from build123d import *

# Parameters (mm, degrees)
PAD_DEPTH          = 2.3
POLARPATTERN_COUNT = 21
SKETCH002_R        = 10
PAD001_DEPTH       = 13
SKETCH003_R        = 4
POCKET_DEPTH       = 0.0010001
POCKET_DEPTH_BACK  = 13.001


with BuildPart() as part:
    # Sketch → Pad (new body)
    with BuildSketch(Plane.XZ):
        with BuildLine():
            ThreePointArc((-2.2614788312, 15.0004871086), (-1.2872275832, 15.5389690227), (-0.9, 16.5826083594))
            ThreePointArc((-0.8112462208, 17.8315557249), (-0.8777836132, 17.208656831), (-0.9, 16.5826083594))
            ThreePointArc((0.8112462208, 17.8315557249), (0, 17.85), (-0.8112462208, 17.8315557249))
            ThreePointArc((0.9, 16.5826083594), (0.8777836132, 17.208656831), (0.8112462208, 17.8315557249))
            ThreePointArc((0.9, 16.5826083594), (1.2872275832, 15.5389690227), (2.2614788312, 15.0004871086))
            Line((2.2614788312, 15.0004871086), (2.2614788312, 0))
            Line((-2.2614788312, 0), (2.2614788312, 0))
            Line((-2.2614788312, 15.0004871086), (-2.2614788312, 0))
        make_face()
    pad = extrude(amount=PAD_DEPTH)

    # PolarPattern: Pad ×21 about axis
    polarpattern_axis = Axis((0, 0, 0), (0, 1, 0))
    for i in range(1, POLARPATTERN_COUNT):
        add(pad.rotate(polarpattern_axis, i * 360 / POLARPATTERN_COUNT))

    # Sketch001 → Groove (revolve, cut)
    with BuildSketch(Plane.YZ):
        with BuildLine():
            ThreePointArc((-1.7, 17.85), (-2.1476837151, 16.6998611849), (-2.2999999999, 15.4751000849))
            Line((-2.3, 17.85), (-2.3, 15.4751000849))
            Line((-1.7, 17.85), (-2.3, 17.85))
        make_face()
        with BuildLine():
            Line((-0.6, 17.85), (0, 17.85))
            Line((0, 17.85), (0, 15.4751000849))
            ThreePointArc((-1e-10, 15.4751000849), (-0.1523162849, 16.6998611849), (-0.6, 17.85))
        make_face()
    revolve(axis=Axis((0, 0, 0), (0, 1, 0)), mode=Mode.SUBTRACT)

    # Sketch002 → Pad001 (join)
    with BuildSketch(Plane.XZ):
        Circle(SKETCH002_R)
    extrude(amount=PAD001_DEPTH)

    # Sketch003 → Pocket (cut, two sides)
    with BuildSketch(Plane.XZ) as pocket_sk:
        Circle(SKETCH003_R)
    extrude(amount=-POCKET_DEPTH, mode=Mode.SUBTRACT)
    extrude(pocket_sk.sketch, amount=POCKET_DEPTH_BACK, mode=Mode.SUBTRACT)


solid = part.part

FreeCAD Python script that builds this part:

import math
import FreeCAD as App
import Part
import Sketcher

doc = App.newDocument("Part")
body = doc.addObject("PartDesign::Body", "Body")

# Sketch on XZ plane
sketch1 = doc.addObject("Sketcher::SketchObject", "Sketch")
body.addObject(sketch1)
sketch1.AttachmentSupport = (doc.XZ_Plane, [""])
sketch1.MapMode = "FlatFace"
sketch1.addGeometry([
    Part.ArcOfCircle(Part.Circle(App.Vector(-2.5, 16.6, 0), App.Vector(0, 0, 1), 1.6), math.radians(-81), math.radians(0)),  # 0
    Part.LineSegment(App.Vector(-2.3, 15, 0), App.Vector(-2.3, 0, 0)),  # 1
    Part.LineSegment(App.Vector(-2.3, 0, 0), App.Vector(2.3, 0, 0)),  # 2
    Part.LineSegment(App.Vector(2.3, 0, 0), App.Vector(2.3, 15, 0)),  # 3
    Part.ArcOfCircle(Part.Circle(App.Vector(2.5, 16.6, 0), App.Vector(0, 0, 1), 1.6), math.radians(180), math.radians(261)),  # 4
    Part.ArcOfCircle(Part.Circle(App.Vector(-7.9, 16.6, 0), App.Vector(0, 0, 1), 8.8), math.radians(0), math.radians(8.13)),  # 5
    Part.ArcOfCircle(Part.Circle(App.Vector(0, 0, 0), App.Vector(0, 0, 1), 17.9), math.radians(87.4), math.radians(92.6)),  # 6
    Part.ArcOfCircle(Part.Circle(App.Vector(7.9, 16.6, 0), App.Vector(0, 0, 1), 8.8), math.radians(171.87), math.radians(180)),  # 7
], False)
sketch1.addConstraint([
    Sketcher.Constraint("Coincident", 0, 1, 1, 1),
    Sketcher.Constraint("Coincident", 1, 2, 2, 1),
    Sketcher.Constraint("Coincident", 2, 2, 3, 1),
    Sketcher.Constraint("Coincident", 3, 2, 4, 2),
    Sketcher.Constraint("Tangent", 4, 1, 5, 1),
    Sketcher.Constraint("Coincident", 5, 2, 6, 1),
    Sketcher.Constraint("Coincident", 6, 2, 7, 1),
    Sketcher.Constraint("Tangent", 7, 2, 0, 2),
    Sketcher.Constraint("Vertical", 1),
    Sketcher.Constraint("Horizontal", 2),
    Sketcher.Constraint("Vertical", 3),
    Sketcher.Constraint("Coincident", 6, 3, -1, 1),
    Sketcher.Constraint("Equal", 0, 4),
    Sketcher.Constraint("Equal", 5, 7),
    Sketcher.Constraint("Symmetric", 1, 2, 2, 2, -1, 1),
    Sketcher.Constraint("Symmetric", 0, 3, 4, 3, -2),
    Sketcher.Constraint("Horizontal", 4, 3, 5, 3),
    Sketcher.Constraint("Horizontal", 5, 3, 7, 3),
    Sketcher.Constraint("Radius", 0, 1.6),
    Sketcher.Constraint("Radius", 6, 17.85),
    Sketcher.Constraint("Radius", 5, 8.832),
    Sketcher.Constraint("DistanceX", 0, 3, 4, 3, 5.0),
    Sketcher.Constraint("DistanceX", 2, 1, 2, 2, 4.522958),
    Sketcher.Constraint("DistanceY", 1, 2, 1, 1, 15.000487),
])
pad1 = doc.addObject("PartDesign::Pad", "Pad")
body.addObject(pad1)
pad1.Profile = sketch1
pad1.Length = 2.3
doc.recompute()

polarpattern = doc.addObject("PartDesign::PolarPattern", "PolarPattern")
body.addObject(polarpattern)
polarpattern.Originals = [pad1]
polarpattern.Axis = (doc.Y_Axis, [""])
polarpattern.Angle = 360
polarpattern.Occurrences = 21
body.Tip = polarpattern

# Sketch on YZ plane
sketch2 = doc.addObject("Sketcher::SketchObject", "Sketch001")
body.addObject(sketch2)
sketch2.AttachmentSupport = (doc.YZ_Plane, [""])
sketch2.MapMode = "FlatFace"
sketch2.addGeometry([
    Part.ArcOfCircle(Part.Circle(App.Vector(2.7, 15.5, 0), App.Vector(0, 0, 1), 5), math.radians(152), math.radians(180)),  # 0
    Part.LineSegment(App.Vector(-1.7, 17.9, 0), App.Vector(-2.3, 17.9, 0)),  # 1
    Part.LineSegment(App.Vector(-2.3, 17.9, 0), App.Vector(-2.3, 15.5, 0)),  # 2
    Part.LineSegment(App.Vector(0, 17.9, 0), App.Vector(-0.6, 17.9, 0)),  # 3
    Part.ArcOfCircle(Part.Circle(App.Vector(-5, 15.5, 0), App.Vector(0, 0, 1), 5), math.radians(0), math.radians(28)),  # 4
    Part.LineSegment(App.Vector(0, 15.5, 0), App.Vector(0, 17.9, 0)),  # 5
], False)
sketch2.addConstraint([
    Sketcher.Constraint("Coincident", 0, 1, 1, 1),
    Sketcher.Constraint("Coincident", 1, 2, 2, 1),
    Sketcher.Constraint("Coincident", 2, 2, 0, 2),
    Sketcher.Constraint("Coincident", 3, 2, 4, 2),
    Sketcher.Constraint("Coincident", 4, 1, 5, 1),
    Sketcher.Constraint("Coincident", 5, 2, 3, 1),
    Sketcher.Constraint("Horizontal", 1),
    Sketcher.Constraint("Vertical", 2),
    Sketcher.Constraint("Horizontal", 3),
    Sketcher.Constraint("Vertical", 5),
    Sketcher.Constraint("Equal", 0, 4),
    Sketcher.Constraint("PointOnObject", 4, 1, -2),
    Sketcher.Constraint("Horizontal", 0, 3, 4, 3),
    Sketcher.Constraint("Horizontal", 1, 2, 3, 2),
    Sketcher.Constraint("Horizontal", 2, 2, 4, 1),
    Sketcher.Constraint("Radius", 0, 5.0),
    Sketcher.Constraint("DistanceX", 1, 2, 1, 1, 0.6),
    Sketcher.Constraint("DistanceX", -1, 1, 0, 3, 2.7),
    Sketcher.Constraint("DistanceY", -1, 1, 0, 1, 17.85),
    Sketcher.Constraint("DistanceY", 2, 2, 2, 1, 2.3749),
])
groove = doc.addObject("PartDesign::Groove", "Groove")
body.addObject(groove)
groove.Profile = sketch2
groove.ReferenceAxis = (sketch2, ["H_Axis"])
groove.Angle = 360

# Sketch on XZ plane
sketch3 = doc.addObject("Sketcher::SketchObject", "Sketch002")
body.addObject(sketch3)
sketch3.AttachmentSupport = (doc.XZ_Plane, [""])
sketch3.MapMode = "FlatFace"
sketch3.addGeometry(Part.Circle(App.Vector(0, 0, 0), App.Vector(0, 0, 1), 10), False)
sketch3.addConstraint([
    Sketcher.Constraint("Coincident", 0, 3, -1, 1),
    Sketcher.Constraint("Diameter", 0, 20.0),
])
pad2 = doc.addObject("PartDesign::Pad", "Pad001")
body.addObject(pad2)
pad2.Profile = sketch3
pad2.Length = 13

# Sketch on XZ plane
sketch4 = doc.addObject("Sketcher::SketchObject", "Sketch003")
body.addObject(sketch4)
sketch4.AttachmentSupport = (doc.XZ_Plane, [""])
sketch4.MapMode = "FlatFace"
sketch4.addGeometry(Part.Circle(App.Vector(0, 0, 0), App.Vector(0, 0, 1), 4), False)
sketch4.addConstraint([
    Sketcher.Constraint("Coincident", 0, 3, -1, 1),
    Sketcher.Constraint("Diameter", 0, 8.0),
])
pocket1 = doc.addObject("PartDesign::Pocket", "Pocket")
body.addObject(pocket1)
pocket1.Profile = sketch4
pocket1.Type = "ThroughAll"
pocket1.Midplane = True

doc.recompute()
